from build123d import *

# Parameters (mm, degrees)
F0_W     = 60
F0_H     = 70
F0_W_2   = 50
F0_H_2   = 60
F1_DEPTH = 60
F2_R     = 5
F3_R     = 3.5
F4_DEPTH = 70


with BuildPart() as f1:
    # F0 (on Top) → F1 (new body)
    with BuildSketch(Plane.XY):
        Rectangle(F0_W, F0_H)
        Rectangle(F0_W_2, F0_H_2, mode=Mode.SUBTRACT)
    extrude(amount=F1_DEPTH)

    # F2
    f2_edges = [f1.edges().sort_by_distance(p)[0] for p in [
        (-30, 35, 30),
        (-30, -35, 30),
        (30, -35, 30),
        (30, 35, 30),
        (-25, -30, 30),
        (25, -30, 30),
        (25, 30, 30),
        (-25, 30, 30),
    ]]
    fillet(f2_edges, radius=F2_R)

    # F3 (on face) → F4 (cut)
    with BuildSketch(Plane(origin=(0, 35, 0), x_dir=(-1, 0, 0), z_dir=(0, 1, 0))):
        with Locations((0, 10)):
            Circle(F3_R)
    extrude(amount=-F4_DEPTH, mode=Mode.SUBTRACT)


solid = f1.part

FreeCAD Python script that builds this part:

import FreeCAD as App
import Part
import Sketcher

V = App.Vector


def edges_at(feature, points):
    """Names of the edges that pass closest to the given points."""
    edges = feature.Shape.Edges
    near = lambda p: min(range(len(edges)), key=lambda i: edges[i].distToShape(Part.Vertex(*p))[0])
    return sorted({f"Edge{near(p) + 1}" for p in points})

doc = App.newDocument("Part")
body = doc.addObject("PartDesign::Body", "Body")

# Sketch on XY plane
sketch1 = doc.addObject("Sketcher::SketchObject", "Sketch")
body.addObject(sketch1)
sketch1.AttachmentSupport = (doc.XY_Plane, [""])
sketch1.MapMode = "FlatFace"
sketch1.addGeometry([
    Part.LineSegment(V(-30, 35, 0), V(-30, -35, 0)),  # 0
    Part.LineSegment(V(-30, -35, 0), V(30, -35, 0)),  # 1
    Part.LineSegment(V(30, -35, 0), V(30, 35, 0)),  # 2
    Part.LineSegment(V(30, 35, 0), V(-30, 35, 0)),  # 3
    Part.LineSegment(V(25, -30, 0), V(-25, -30, 0)),  # 4
    Part.LineSegment(V(-25, -30, 0), V(-25, 30, 0)),  # 5
    Part.LineSegment(V(-25, 30, 0), V(25, 30, 0)),  # 6
    Part.LineSegment(V(25, 30, 0), V(25, -30, 0)),  # 7
], False)
sketch1.addConstraint([
    Sketcher.Constraint("Coincident", 0, 2, 1, 1),
    Sketcher.Constraint("Coincident", 1, 2, 2, 1),
    Sketcher.Constraint("Coincident", 2, 2, 3, 1),
    Sketcher.Constraint("Coincident", 3, 2, 0, 1),
    Sketcher.Constraint("Coincident", 4, 2, 5, 1),
    Sketcher.Constraint("Coincident", 5, 2, 6, 1),
    Sketcher.Constraint("Coincident", 6, 2, 7, 1),
    Sketcher.Constraint("Coincident", 7, 2, 4, 1),
    Sketcher.Constraint("Vertical", 0),
    Sketcher.Constraint("Horizontal", 1),
    Sketcher.Constraint("Vertical", 2),
    Sketcher.Constraint("Horizontal", 3),
    Sketcher.Constraint("Horizontal", 4),
    Sketcher.Constraint("Vertical", 5),
    Sketcher.Constraint("Horizontal", 6),
    Sketcher.Constraint("Vertical", 7),
    Sketcher.Constraint("Symmetric", 0, 2, 2, 2, -1, 1),
    Sketcher.Constraint("Symmetric", 4, 2, 6, 2, -1, 1),
    Sketcher.Constraint("Equal", 3, 5),
    Sketcher.Constraint("DistanceX", 1, 1, 1, 2, 60.0),
    Sketcher.Constraint("DistanceX", 4, 2, 4, 1, 50.0),
    Sketcher.Constraint("DistanceY", 0, 2, 0, 1, 70.0),
])
pad1 = doc.addObject("PartDesign::Pad", "Pad")
body.addObject(pad1)
pad1.Profile = sketch1
pad1.Length = 60
doc.recompute()

fillet = doc.addObject("PartDesign::Fillet", "Fillet")
body.addObject(fillet)
fillet.Base = (pad1, edges_at(pad1, [
    (-30, 35, 30),
    (-30, -35, 30),
    (30, -35, 30),
    (30, 35, 30),
    (-25, -30, 30),
    (25, -30, 30),
    (25, 30, 30),
    (-25, 30, 30),
]))
fillet.Radius = 5

# Sketch on XZ plane
sketch2 = doc.addObject("Sketcher::SketchObject", "Sketch001")
body.addObject(sketch2)
sketch2.AttachmentSupport = (doc.XZ_Plane, [""])
sketch2.MapMode = "FlatFace"
sketch2.AttachmentOffset = App.Placement(V(0, 0, -35), App.Rotation())
sketch2.addGeometry(Part.Circle(V(0, 10, 0), V(0, 0, 1), 3.5), False)
sketch2.addConstraint([
    Sketcher.Constraint("PointOnObject", 0, 3, -2),
    Sketcher.Constraint("Diameter", 0, 7.0),
    Sketcher.Constraint("DistanceY", -1, 1, 0, 3, 10.0),
])
pocket1 = doc.addObject("PartDesign::Pocket", "Pocket")
body.addObject(pocket1)
pocket1.Profile = sketch2
pocket1.Length = 70
pocket1.Reversed = True

doc.recompute()
